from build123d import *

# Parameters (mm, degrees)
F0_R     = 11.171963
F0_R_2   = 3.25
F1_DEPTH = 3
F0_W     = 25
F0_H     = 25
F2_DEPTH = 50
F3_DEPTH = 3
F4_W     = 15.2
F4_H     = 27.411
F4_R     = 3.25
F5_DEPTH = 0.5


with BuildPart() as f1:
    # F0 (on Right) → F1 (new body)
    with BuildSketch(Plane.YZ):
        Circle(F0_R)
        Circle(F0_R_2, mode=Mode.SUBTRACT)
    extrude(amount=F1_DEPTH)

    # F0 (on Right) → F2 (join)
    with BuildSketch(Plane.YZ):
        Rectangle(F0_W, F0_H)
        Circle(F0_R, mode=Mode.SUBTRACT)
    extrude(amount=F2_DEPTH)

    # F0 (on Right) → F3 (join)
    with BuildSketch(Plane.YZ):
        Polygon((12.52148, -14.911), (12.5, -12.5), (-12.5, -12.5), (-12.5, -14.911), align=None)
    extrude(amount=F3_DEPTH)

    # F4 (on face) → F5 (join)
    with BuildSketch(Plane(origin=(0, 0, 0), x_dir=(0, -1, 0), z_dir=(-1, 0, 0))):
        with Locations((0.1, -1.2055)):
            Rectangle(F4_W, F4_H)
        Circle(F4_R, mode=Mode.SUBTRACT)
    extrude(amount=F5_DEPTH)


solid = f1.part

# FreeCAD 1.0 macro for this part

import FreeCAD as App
import Part
import Sketcher

V = App.Vector


def add_polygon(sketch, points):
    """Adds a closed chain of lines whose ends are joined by coincident constraints."""
    first, n = sketch.GeometryCount, len(points)
    for a, b in zip(points, points[1:] + points[:1]):
        sketch.addGeometry(Part.LineSegment(App.Vector(*a, 0), App.Vector(*b, 0)), False)
    for i in range(n):
        sketch.addConstraint(Sketcher.Constraint("Coincident", first + i, 2, first + (i + 1) % n, 1))

doc = App.newDocument("Part")
body = doc.addObject("PartDesign::Body", "Body")

# Sketch on YZ plane
sketch1 = body.newObject("Sketcher::SketchObject", "Sketch")
sketch1.AttachmentSupport = (doc.getObject("YZ_Plane"), [""])
sketch1.MapMode = "FlatFace"
sketch1.addGeometry([
    Part.Circle(V(0, 0, 0), V(0, 0, 1), 11.171963),
    Part.Circle(V(0, 0, 0), V(0, 0, 1), 3.25),
], False)
sketch1.addConstraint([
    Sketcher.Constraint("Coincident", 0, 3, -1, 1),
    Sketcher.Constraint("Coincident", 1, 3, -1, 1),
    Sketcher.Constraint("Diameter", 1, 6.5),
    Sketcher.Constraint("Diameter", 0, 22.343926),
])
pad1 = body.newObject("PartDesign::Pad", "Pad")
pad1.Profile = sketch1
pad1.Length = 3

# Sketch on YZ plane
sketch2 = body.newObject("Sketcher::SketchObject", "Sketch001")
sketch2.AttachmentSupport = (doc.getObject("YZ_Plane"), [""])
sketch2.MapMode = "FlatFace"
add_polygon(sketch2, [(-12.5, 12.5), (-12.5, -12.5), (12.5, -12.5), (12.5, 12.5)])  # lines 0-3
sketch2.addGeometry(Part.Circle(V(0, 0, 0), V(0, 0, 1), 11.171963), False)  # 4
sketch2.addConstraint([
    Sketcher.Constraint("Vertical", 0),
    Sketcher.Constraint("Horizontal", 1),
    Sketcher.Constraint("Vertical", 2),
    Sketcher.Constraint("Horizontal", 3),
    Sketcher.Constraint("Coincident", 4, 3, -1, 1),
    Sketcher.Constraint("Symmetric", 0, 2, 2, 2, -1, 1),
    Sketcher.Constraint("Equal", 3, 0),
    Sketcher.Constraint("DistanceX", 1, 1, 1, 2, 25.0),
    Sketcher.Constraint("Diameter", 4, 22.343926),
])
pad2 = body.newObject("PartDesign::Pad", "Pad001")
pad2.Profile = sketch2
pad2.Length = 50

# Sketch on YZ plane
sketch3 = body.newObject("Sketcher::SketchObject", "Sketch002")
sketch3.AttachmentSupport = (doc.getObject("YZ_Plane"), [""])
sketch3.MapMode = "FlatFace"
add_polygon(sketch3, [(12.52148, -14.911), (12.5, -12.5), (-12.5, -12.5), (-12.5, -14.911)])  # lines 0-3
sketch3.addConstraint([
    Sketcher.Constraint("Horizontal", 1),
    Sketcher.Constraint("Vertical", 2),
    Sketcher.Constraint("Horizontal", 3),
    Sketcher.Constraint("DistanceX", 1, 2, 1, 1, 25.0),
    Sketcher.Constraint("DistanceX", -1, 1, 0, 2, 12.5),
    Sketcher.Constraint("DistanceY", 0, 2, -1, 1, 12.5),
    Sketcher.Constraint("DistanceY", 2, 2, 2, 1, 2.411),
    Sketcher.Constraint("DistanceX", 3, 1, 3, 2, 25.02148),
])
pad3 = body.newObject("PartDesign::Pad", "Pad002")
pad3.Profile = sketch3
pad3.Length = 3

# Sketch on YZ plane
sketch4 = body.newObject("Sketcher::SketchObject", "Sketch003")
sketch4.AttachmentSupport = (doc.getObject("YZ_Plane"), [""])
sketch4.MapMode = "FlatFace"
add_polygon(sketch4, [(7.5, 12.5), (7.5, -14.911), (-7.7, -14.911), (-7.7, 12.5)])  # lines 0-3
sketch4.addGeometry(Part.Circle(V(0, 0, 0), V(0, 0, 1), 3.25), False)  # 4
sketch4.addConstraint([
    Sketcher.Constraint("Vertical", 0),
    Sketcher.Constraint("Horizontal", 1),
    Sketcher.Constraint("Vertical", 2),
    Sketcher.Constraint("Horizontal", 3),
    Sketcher.Constraint("Coincident", 4, 3, -1, 1),
    Sketcher.Constraint("Diameter", 4, 6.5),
    Sketcher.Constraint("DistanceX", 1, 2, 1, 1, 15.2),
    Sketcher.Constraint("DistanceX", -1, 1, 0, 2, 7.5),
    Sketcher.Constraint("DistanceY", -1, 1, 2, 2, 12.5),
    Sketcher.Constraint("DistanceY", 0, 2, 0, 1, 27.411),
])
pad4 = body.newObject("PartDesign::Pad", "Pad003")
pad4.Profile = sketch4
pad4.Length = 0.5
pad4.Reversed = True

doc.recompute()
